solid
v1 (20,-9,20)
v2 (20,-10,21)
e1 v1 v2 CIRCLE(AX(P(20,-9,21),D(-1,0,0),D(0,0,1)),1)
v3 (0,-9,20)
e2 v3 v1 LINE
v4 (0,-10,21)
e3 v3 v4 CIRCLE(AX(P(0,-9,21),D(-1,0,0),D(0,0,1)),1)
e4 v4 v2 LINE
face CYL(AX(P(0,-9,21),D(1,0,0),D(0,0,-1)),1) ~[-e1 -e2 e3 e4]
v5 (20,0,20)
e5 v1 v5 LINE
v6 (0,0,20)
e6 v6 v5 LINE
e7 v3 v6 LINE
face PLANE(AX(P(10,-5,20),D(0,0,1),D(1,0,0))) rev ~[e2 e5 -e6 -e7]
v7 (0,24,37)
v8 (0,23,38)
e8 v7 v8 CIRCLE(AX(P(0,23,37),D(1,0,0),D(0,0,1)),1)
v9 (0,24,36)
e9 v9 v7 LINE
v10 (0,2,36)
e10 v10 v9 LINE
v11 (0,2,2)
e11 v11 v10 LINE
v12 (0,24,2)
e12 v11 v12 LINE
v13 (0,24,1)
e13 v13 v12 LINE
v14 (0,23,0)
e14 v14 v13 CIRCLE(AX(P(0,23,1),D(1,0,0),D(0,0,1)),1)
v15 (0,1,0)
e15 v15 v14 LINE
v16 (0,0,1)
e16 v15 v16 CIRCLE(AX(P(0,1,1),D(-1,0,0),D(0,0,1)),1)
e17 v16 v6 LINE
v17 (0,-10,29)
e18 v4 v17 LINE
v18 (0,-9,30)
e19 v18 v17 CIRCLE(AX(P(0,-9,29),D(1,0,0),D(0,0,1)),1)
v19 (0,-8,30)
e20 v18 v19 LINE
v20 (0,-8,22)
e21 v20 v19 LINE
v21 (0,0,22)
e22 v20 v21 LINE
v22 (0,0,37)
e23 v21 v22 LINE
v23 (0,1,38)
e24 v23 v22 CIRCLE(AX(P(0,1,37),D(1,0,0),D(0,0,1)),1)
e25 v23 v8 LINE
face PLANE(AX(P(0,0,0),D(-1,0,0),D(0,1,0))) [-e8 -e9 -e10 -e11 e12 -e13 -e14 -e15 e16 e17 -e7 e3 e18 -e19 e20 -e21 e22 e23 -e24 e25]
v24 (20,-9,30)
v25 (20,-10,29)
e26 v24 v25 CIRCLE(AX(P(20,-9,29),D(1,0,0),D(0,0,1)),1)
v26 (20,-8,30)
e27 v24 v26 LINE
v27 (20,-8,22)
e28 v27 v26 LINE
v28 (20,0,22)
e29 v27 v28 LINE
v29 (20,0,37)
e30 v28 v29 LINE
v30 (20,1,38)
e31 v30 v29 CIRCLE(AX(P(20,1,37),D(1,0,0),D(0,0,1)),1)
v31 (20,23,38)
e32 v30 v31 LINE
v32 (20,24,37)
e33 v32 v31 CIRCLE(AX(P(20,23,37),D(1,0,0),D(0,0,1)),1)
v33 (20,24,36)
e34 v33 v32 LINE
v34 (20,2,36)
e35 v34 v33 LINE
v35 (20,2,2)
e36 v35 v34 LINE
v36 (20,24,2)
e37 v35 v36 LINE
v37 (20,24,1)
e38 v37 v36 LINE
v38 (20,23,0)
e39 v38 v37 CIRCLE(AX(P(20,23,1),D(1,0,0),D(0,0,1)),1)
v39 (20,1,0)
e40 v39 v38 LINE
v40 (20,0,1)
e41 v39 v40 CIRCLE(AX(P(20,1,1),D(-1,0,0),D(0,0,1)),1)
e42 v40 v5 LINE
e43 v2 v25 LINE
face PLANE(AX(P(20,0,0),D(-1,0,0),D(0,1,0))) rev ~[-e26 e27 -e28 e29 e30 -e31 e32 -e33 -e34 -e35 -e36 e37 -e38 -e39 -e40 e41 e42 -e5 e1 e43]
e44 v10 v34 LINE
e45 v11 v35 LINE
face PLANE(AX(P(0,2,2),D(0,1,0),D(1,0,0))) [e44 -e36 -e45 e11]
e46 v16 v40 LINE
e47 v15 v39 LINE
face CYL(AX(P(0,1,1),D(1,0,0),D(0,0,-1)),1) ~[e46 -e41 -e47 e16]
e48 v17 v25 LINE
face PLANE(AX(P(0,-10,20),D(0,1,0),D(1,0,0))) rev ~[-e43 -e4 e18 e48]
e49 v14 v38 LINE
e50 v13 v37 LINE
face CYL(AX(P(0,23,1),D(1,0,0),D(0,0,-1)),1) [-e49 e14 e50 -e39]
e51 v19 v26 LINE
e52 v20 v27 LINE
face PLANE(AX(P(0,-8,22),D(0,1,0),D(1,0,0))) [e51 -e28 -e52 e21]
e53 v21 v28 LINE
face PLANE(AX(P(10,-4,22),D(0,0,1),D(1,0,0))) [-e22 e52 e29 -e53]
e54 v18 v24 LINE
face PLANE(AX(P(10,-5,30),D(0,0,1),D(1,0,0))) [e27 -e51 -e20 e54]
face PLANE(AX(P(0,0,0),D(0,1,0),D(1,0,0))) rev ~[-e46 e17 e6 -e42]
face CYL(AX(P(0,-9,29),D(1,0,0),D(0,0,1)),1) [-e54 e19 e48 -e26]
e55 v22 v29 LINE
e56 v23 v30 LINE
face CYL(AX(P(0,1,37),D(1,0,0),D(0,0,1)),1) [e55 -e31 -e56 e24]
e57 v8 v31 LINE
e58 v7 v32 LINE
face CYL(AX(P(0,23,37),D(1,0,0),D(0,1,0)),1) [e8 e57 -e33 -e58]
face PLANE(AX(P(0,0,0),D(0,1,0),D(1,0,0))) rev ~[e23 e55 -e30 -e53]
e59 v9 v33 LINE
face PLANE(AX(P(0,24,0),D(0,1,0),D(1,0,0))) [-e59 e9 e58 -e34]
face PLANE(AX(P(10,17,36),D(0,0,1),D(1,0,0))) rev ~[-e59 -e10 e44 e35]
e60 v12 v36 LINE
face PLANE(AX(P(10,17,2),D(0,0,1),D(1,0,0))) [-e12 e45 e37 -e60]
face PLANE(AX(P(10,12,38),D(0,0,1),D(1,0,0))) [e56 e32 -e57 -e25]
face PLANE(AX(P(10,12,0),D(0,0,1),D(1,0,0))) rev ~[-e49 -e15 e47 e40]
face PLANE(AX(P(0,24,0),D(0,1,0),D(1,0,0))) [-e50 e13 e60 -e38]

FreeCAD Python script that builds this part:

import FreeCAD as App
import Part
import Sketcher
Q = App.Units.Quantity


def edges_at(feature, points):
    """Names of the edges that pass closest to the given points."""
    edges = feature.Shape.Edges
    near = lambda p: min(range(len(edges)), key=lambda i: edges[i].distToShape(Part.Vertex(*p))[0])
    return sorted({f"Edge{near(p) + 1}" for p in points})


def add_polygon(sketch, points):
    """Adds a closed chain of lines whose ends are joined by coincident constraints."""
    first, n = sketch.GeometryCount, len(points)
    for a, b in zip(points, points[1:] + points[:1]):
        sketch.addGeometry(Part.LineSegment(App.Vector(*a, 0), App.Vector(*b, 0)), False)
    for i in range(n):
        sketch.addConstraint(Sketcher.Constraint("Coincident", first + i, 2, first + (i + 1) % n, 1))

doc = App.newDocument("Part")
body = doc.addObject("PartDesign::Body", "Body")

sketch1 = body.newObject("Sketcher::SketchObject", "Sketch")
sketch1.AttachmentSupport = (doc.getObject("XY_Plane"), [""])
sketch1.MapMode = "FlatFace"
sketch1.AttachmentOffset = App.Placement(App.Vector(0, 0, 2), App.Rotation())
add_polygon(sketch1, [(0, 32), (0, 2), (20, 2), (20, 32)])
sketch1.addConstraint(Sketcher.Constraint("Vertical", 0))
sketch1.addConstraint(Sketcher.Constraint("Horizontal", 1))
sketch1.addConstraint(Sketcher.Constraint("Vertical", 2))
sketch1.addConstraint(Sketcher.Constraint("Horizontal", 3))
sketch1.addConstraint(Sketcher.Constraint("PointOnObject", 0, 2, -2))
sketch1.addConstraint(Sketcher.Constraint("DistanceX", 1, 1, 1, 2, Q("20 mm")))
sketch1.addConstraint(Sketcher.Constraint("DistanceY", 0, 2, 0, 1, Q("30 mm")))
sketch1.addConstraint(Sketcher.Constraint("DistanceY", -1, 1, 0, 2, Q("2 mm")))
pad1 = body.newObject("PartDesign::Pad", "Pad")
pad1.Profile = sketch1
pad1.Length = 34
body2 = doc.addObject("PartDesign::Body", "Body001")

sketch2 = body2.newObject("Sketcher::SketchObject", "Sketch001")
sketch2.AttachmentSupport = (doc.getObject("XY_Plane001"), [""])
sketch2.MapMode = "FlatFace"
add_polygon(sketch2, [(0, 24), (0, 0), (20, 0), (20, 24)])
sketch2.addConstraint(Sketcher.Constraint("Vertical", 0))
sketch2.addConstraint(Sketcher.Constraint("Horizontal", 1))
sketch2.addConstraint(Sketcher.Constraint("Vertical", 2))
sketch2.addConstraint(Sketcher.Constraint("Horizontal", 3))
sketch2.addConstraint(Sketcher.Constraint("Coincident", 0, 2, -1, 1))
sketch2.addConstraint(Sketcher.Constraint("DistanceX", 1, 1, 1, 2, Q("20 mm")))
sketch2.addConstraint(Sketcher.Constraint("DistanceY", 0, 2, 0, 1, Q("24 mm")))
pad2 = body2.newObject("PartDesign::Pad", "Pad001")
pad2.Profile = sketch2
pad2.Length = 38
doc.recompute()

boolean = body2.newObject("PartDesign::Boolean", "Boolean")
boolean.Type = "Cut"
boolean.addObjects([body])
body3 = doc.addObject("PartDesign::Body", "Body002")

sketch3 = body3.newObject("Sketcher::SketchObject", "Sketch002")
sketch3.AttachmentSupport = (doc.getObject("XY_Plane002"), [""])
sketch3.MapMode = "FlatFace"
sketch3.AttachmentOffset = App.Placement(App.Vector(0, 0, 22), App.Rotation())
add_polygon(sketch3, [(0, 0), (0, -8), (20, -8), (20, 0)])
sketch3.addConstraint(Sketcher.Constraint("Vertical", 0))
sketch3.addConstraint(Sketcher.Constraint("Horizontal", 1))
sketch3.addConstraint(Sketcher.Constraint("Vertical", 2))
sketch3.addConstraint(Sketcher.Constraint("Horizontal", 3))
sketch3.addConstraint(Sketcher.Constraint("Coincident", 3, 2, -1, 1))
sketch3.addConstraint(Sketcher.Constraint("DistanceX", 1, 1, 1, 2, Q("20 mm")))
sketch3.addConstraint(Sketcher.Constraint("DistanceY", 0, 2, 0, 1, Q("8 mm")))
pad3 = body3.newObject("PartDesign::Pad", "Pad002")
pad3.Profile = sketch3
pad3.Length = 8
body4 = doc.addObject("PartDesign::Body", "Body003")

sketch4 = body4.newObject("Sketcher::SketchObject", "Sketch003")
sketch4.AttachmentSupport = (doc.getObject("XY_Plane003"), [""])
sketch4.MapMode = "FlatFace"
sketch4.AttachmentOffset = App.Placement(App.Vector(0, 0, 20), App.Rotation())
add_polygon(sketch4, [(0, 0), (0, -10), (20, -10), (20, 0)])
sketch4.addConstraint(Sketcher.Constraint("Vertical", 0))
sketch4.addConstraint(Sketcher.Constraint("Horizontal", 1))
sketch4.addConstraint(Sketcher.Constraint("Vertical", 2))
sketch4.addConstraint(Sketcher.Constraint("Horizontal", 3))
sketch4.addConstraint(Sketcher.Constraint("Coincident", 3, 2, -1, 1))
sketch4.addConstraint(Sketcher.Constraint("DistanceX", 1, 1, 1, 2, Q("20 mm")))
sketch4.addConstraint(Sketcher.Constraint("DistanceY", 0, 2, 0, 1, Q("10 mm")))
pad4 = body4.newObject("PartDesign::Pad", "Pad003")
pad4.Profile = sketch4
pad4.Length = 10
doc.recompute()

boolean2 = body4.newObject("PartDesign::Boolean", "Boolean001")
boolean2.Type = "Cut"
boolean2.addObjects([body3])
doc.recompute()

boolean3 = body4.newObject("PartDesign::Boolean", "Boolean002")
boolean3.Type = "Fuse"
boolean3.addObjects([body2])
doc.recompute()

fillet = body4.newObject("PartDesign::Fillet", "Fillet")
fillet.Base = (boolean3, edges_at(boolean3, [
    (10, -10, 30),
    (10, -10, 20),
    (10, 0, 0),
    (10, 0, 38),
    (10, 24, 38),
    (10, 24, 0),
]))
fillet.Radius = 1

doc.recompute()
